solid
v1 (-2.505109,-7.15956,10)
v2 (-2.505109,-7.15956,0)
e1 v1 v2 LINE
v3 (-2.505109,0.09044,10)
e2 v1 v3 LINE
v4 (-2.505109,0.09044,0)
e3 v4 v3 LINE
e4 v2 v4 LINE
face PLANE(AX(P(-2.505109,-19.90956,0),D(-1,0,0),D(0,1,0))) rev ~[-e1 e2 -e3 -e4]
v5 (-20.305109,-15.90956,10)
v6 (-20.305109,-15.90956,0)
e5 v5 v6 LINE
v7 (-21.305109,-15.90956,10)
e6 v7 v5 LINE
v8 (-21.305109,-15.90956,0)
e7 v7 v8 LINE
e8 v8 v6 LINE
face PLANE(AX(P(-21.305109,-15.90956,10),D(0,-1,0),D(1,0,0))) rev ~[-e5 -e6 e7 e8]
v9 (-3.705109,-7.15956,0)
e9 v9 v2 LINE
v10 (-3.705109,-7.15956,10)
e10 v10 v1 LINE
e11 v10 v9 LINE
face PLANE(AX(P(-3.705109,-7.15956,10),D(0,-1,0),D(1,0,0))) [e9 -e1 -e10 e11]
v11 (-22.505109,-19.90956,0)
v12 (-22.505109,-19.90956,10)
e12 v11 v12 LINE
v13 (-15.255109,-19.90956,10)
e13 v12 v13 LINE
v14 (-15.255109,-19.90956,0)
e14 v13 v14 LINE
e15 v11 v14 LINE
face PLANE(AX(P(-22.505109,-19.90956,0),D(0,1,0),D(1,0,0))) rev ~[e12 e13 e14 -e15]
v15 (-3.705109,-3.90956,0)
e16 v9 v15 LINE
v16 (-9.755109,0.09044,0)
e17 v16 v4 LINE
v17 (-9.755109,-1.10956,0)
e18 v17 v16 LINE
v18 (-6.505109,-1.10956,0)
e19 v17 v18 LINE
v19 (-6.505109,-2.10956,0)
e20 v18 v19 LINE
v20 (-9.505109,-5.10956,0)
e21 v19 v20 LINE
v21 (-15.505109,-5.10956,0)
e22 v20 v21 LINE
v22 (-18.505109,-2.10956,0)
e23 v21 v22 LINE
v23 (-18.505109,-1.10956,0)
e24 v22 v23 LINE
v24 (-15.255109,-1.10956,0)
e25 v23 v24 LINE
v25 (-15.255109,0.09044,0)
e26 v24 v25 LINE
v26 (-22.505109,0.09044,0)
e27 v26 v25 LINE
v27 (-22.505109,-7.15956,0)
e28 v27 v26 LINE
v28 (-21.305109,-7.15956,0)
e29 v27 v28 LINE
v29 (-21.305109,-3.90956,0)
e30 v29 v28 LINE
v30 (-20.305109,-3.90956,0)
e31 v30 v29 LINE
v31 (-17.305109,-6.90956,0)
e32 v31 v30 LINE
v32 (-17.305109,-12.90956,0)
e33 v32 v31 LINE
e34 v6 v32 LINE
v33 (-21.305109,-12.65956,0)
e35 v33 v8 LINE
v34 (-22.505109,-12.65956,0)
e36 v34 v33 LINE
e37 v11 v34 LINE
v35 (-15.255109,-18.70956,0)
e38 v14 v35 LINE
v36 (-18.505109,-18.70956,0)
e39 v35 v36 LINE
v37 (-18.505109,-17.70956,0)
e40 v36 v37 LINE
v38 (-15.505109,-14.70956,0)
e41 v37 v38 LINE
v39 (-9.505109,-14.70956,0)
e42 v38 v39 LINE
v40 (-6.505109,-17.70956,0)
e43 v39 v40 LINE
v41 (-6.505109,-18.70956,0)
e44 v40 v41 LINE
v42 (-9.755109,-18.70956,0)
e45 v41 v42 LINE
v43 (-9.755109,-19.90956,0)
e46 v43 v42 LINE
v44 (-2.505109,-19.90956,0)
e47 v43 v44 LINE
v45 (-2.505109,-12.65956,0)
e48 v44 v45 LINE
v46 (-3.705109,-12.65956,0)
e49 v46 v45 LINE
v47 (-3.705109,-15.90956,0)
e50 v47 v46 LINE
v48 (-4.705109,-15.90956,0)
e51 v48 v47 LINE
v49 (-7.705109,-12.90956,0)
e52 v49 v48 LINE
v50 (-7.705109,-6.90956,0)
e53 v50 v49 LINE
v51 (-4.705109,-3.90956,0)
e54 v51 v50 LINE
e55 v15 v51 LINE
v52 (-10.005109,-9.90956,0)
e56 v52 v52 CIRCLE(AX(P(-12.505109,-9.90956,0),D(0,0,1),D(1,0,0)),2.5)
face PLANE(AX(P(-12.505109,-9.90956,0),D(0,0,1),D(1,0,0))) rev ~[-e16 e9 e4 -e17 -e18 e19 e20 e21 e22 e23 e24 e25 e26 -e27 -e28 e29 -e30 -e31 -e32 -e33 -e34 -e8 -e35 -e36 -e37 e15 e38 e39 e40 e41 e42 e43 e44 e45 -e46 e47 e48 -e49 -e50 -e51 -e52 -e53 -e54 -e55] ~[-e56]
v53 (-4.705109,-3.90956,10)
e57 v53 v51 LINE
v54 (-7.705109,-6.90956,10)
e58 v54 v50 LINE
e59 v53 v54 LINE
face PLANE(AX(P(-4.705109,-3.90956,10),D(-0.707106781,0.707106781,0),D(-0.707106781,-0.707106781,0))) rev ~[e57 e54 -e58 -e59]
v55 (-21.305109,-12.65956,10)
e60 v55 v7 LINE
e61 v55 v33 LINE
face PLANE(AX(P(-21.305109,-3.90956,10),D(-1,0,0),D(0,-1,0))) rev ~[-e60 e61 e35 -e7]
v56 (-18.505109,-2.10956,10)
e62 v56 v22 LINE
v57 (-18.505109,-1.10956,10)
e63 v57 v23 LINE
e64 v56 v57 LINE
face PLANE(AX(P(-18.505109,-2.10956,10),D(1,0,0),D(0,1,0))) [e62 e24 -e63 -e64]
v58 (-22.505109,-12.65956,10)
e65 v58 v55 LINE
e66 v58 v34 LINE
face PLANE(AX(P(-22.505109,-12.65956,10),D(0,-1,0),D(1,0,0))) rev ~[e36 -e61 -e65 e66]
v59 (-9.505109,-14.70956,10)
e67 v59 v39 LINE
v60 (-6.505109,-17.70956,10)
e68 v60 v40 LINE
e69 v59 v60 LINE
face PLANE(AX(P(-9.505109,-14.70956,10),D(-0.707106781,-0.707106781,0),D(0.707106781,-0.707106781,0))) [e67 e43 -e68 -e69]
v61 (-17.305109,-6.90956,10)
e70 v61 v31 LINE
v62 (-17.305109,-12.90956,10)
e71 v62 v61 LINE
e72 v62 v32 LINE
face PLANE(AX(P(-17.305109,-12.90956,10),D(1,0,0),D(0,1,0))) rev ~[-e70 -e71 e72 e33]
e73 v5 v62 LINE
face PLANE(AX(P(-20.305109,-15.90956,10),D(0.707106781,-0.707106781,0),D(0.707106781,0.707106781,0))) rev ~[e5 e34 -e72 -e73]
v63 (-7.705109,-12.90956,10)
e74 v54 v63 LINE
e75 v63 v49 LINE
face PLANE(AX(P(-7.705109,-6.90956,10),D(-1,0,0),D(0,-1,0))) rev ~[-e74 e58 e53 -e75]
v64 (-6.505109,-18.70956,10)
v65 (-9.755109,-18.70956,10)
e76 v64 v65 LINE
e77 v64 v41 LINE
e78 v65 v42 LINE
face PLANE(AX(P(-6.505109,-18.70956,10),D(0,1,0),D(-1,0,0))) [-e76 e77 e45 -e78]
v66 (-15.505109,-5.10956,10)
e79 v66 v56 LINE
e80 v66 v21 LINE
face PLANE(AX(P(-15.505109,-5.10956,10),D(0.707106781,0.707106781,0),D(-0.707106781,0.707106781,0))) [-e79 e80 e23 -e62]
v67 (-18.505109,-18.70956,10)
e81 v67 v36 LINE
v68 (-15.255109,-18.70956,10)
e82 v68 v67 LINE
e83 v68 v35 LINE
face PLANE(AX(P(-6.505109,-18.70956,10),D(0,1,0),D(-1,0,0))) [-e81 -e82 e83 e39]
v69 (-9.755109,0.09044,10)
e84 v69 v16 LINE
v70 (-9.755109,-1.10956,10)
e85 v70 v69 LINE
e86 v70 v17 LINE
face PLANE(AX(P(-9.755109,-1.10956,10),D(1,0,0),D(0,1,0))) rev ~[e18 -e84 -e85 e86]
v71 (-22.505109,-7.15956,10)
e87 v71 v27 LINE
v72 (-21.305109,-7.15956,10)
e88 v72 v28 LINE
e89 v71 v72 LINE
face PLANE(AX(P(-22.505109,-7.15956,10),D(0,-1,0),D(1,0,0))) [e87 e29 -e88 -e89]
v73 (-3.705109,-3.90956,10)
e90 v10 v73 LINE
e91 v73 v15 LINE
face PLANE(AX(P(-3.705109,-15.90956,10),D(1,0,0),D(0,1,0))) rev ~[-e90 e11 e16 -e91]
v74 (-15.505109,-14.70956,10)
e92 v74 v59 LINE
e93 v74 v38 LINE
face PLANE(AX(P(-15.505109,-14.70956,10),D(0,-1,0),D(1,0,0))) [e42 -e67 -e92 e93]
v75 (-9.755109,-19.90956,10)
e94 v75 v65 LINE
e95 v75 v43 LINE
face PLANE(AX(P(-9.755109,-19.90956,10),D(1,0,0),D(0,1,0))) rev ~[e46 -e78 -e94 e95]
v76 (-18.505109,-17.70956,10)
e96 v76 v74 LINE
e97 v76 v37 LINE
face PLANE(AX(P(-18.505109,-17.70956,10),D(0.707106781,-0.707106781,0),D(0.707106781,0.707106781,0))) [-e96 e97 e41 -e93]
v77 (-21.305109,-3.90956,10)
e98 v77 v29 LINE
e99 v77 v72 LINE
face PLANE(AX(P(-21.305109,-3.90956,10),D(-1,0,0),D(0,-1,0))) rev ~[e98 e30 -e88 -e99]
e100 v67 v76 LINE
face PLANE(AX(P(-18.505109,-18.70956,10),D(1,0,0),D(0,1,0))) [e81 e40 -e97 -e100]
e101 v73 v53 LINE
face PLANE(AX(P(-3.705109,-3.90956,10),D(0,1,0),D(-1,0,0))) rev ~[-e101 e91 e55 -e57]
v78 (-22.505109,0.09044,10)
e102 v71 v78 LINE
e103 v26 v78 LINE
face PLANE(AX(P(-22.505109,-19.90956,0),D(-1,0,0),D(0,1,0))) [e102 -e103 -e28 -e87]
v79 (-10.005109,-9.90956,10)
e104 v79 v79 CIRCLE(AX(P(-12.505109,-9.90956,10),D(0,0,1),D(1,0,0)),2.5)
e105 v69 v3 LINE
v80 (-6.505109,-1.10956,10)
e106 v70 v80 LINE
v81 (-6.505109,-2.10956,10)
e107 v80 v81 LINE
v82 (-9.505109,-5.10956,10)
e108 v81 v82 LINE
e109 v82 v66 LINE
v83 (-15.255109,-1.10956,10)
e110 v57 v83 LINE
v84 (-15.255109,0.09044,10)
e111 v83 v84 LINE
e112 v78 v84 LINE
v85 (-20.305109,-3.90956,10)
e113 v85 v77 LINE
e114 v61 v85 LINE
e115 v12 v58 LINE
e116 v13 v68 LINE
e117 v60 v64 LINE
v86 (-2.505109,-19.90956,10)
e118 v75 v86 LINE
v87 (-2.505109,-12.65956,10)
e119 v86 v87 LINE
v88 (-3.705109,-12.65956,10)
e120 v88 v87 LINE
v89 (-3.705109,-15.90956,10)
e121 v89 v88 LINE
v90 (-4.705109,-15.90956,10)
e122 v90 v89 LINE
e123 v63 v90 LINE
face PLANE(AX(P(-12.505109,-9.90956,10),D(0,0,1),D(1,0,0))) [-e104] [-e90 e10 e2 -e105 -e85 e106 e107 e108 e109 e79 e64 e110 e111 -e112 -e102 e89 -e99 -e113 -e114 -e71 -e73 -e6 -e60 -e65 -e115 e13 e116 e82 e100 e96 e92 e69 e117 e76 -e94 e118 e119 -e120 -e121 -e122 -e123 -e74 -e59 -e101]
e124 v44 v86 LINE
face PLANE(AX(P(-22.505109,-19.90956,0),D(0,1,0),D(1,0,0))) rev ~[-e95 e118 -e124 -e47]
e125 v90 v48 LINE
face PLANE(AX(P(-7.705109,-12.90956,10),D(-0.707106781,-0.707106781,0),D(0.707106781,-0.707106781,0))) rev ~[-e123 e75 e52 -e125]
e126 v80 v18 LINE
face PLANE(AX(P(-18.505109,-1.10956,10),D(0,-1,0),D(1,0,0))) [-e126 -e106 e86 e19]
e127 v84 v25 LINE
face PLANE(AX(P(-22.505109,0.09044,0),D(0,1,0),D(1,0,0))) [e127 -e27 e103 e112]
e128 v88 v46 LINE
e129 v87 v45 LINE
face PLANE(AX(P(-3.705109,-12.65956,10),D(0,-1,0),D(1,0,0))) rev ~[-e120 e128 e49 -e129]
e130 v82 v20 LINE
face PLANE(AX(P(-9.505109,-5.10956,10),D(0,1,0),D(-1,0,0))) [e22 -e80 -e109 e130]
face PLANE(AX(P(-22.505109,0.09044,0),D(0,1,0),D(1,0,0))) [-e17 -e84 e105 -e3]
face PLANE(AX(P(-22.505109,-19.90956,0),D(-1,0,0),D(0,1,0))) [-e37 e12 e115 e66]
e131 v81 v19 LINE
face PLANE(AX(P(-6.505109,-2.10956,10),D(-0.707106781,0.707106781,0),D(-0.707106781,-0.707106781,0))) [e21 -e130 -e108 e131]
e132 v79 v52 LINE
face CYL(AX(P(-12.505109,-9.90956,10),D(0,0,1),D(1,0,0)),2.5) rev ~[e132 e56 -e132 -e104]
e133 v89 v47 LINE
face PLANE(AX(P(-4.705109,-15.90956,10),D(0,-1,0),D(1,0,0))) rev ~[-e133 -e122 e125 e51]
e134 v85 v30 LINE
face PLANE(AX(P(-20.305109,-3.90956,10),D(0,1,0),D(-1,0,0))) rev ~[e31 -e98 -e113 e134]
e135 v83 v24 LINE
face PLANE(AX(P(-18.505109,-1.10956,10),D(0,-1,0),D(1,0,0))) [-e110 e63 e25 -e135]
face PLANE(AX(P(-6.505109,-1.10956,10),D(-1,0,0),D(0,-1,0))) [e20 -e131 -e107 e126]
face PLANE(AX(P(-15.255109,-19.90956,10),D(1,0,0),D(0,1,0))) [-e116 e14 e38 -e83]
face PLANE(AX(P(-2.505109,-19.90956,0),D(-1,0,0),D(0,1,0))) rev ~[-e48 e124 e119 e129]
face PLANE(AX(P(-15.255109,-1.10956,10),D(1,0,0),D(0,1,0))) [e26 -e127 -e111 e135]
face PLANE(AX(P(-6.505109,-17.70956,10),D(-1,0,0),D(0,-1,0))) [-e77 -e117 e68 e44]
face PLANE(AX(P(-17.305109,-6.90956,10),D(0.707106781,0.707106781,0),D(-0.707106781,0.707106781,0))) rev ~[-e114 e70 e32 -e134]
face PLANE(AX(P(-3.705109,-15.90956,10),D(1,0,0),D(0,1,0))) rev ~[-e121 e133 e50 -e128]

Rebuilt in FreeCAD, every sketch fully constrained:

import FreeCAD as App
import Part
import Sketcher

V = App.Vector

doc = App.newDocument("Part")
body = doc.addObject("PartDesign::Body", "Body")

# Sketch on XY plane
sketch1 = body.newObject("Sketcher::SketchObject", "Sketch")
sketch1.AttachmentSupport = (doc.getObject("XY_Plane"), [""])
sketch1.MapMode = "FlatFace"
sketch1.addGeometry([
    Part.LineSegment(V(-23, 0, 0), V(-23, -20, 0)),
    Part.LineSegment(V(-23, -20, 0), V(-3, -20, 0)),
    Part.LineSegment(V(-3, -20, 0), V(-3, 0, 0)),
    Part.LineSegment(V(-3, 0, 0), V(-23, 0, 0)),
], False)
sketch1.addConstraint([
    Sketcher.Constraint("Coincident", 0, 2, 1, 1),
    Sketcher.Constraint("Coincident", 1, 2, 2, 1),
    Sketcher.Constraint("Coincident", 2, 2, 3, 1),
    Sketcher.Constraint("Coincident", 3, 2, 0, 1),
    Sketcher.Constraint("Vertical", 0),
    Sketcher.Constraint("Horizontal", 1),
    Sketcher.Constraint("Vertical", 2),
    Sketcher.Constraint("Horizontal", 3),
    Sketcher.Constraint("Equal", 3, 0),
    Sketcher.Constraint("DistanceX", 1, 1, 1, 2, 20.0),
    Sketcher.Constraint("DistanceX", 0, 2, -1, 1, 22.505109),
    Sketcher.Constraint("DistanceY", 0, 2, -1, 1, 19.90956),
])
pad1 = body.newObject("PartDesign::Pad", "Pad")
pad1.Profile = sketch1
pad1.Length = 10

# Sketch on XY plane
sketch2 = body.newObject("Sketcher::SketchObject", "Sketch001")
sketch2.AttachmentSupport = (doc.getObject("XY_Plane"), [""])
sketch2.MapMode = "FlatFace"
sketch2.AttachmentOffset = App.Placement(V(0, 0, 10), App.Rotation())
sketch2.addGeometry([
    Part.LineSegment(V(-22.5, -7.2, 0), V(-22.5, -12.7, 0)),  # 0
    Part.LineSegment(V(-22.5, -12.7, 0), V(-21.3, -12.7, 0)),  # 1
    Part.LineSegment(V(-21.3, -12.7, 0), V(-21.3, -7.2, 0)),  # 2
    Part.LineSegment(V(-21.3, -7.2, 0), V(-22.5, -7.2, 0)),  # 3
    Part.LineSegment(V(-15.3, 0.1, 0), V(-15.3, -1.1, 0)),  # 4
    Part.LineSegment(V(-15.3, -1.1, 0), V(-9.8, -1.1, 0)),  # 5
    Part.LineSegment(V(-9.8, -1.1, 0), V(-9.8, 0.1, 0)),  # 6
    Part.LineSegment(V(-9.8, 0.1, 0), V(-15.3, 0.1, 0)),  # 7
    Part.LineSegment(V(-3.7, -7.2, 0), V(-3.7, -12.7, 0)),  # 8
    Part.LineSegment(V(-3.7, -12.7, 0), V(-2.5, -12.7, 0)),  # 9
    Part.LineSegment(V(-2.5, -12.7, 0), V(-2.5, -7.2, 0)),  # 10
    Part.LineSegment(V(-2.5, -7.2, 0), V(-3.7, -7.2, 0)),  # 11
    Part.LineSegment(V(-15.3, -18.7, 0), V(-15.3, -19.9, 0)),  # 12
    Part.LineSegment(V(-15.3, -19.9, 0), V(-9.8, -19.9, 0)),  # 13
    Part.LineSegment(V(-9.8, -19.9, 0), V(-9.8, -18.7, 0)),  # 14
    Part.LineSegment(V(-9.8, -18.7, 0), V(-15.3, -18.7, 0)),  # 15
], False)
sketch2.addConstraint([
    Sketcher.Constraint("Coincident", 0, 2, 1, 1),
    Sketcher.Constraint("Coincident", 1, 2, 2, 1),
    Sketcher.Constraint("Coincident", 2, 2, 3, 1),
    Sketcher.Constraint("Coincident", 3, 2, 0, 1),
    Sketcher.Constraint("Coincident", 4, 2, 5, 1),
    Sketcher.Constraint("Coincident", 5, 2, 6, 1),
    Sketcher.Constraint("Coincident", 6, 2, 7, 1),
    Sketcher.Constraint("Coincident", 7, 2, 4, 1),
    Sketcher.Constraint("Coincident", 8, 2, 9, 1),
    Sketcher.Constraint("Coincident", 9, 2, 10, 1),
    Sketcher.Constraint("Coincident", 10, 2, 11, 1),
    Sketcher.Constraint("Coincident", 11, 2, 8, 1),
    Sketcher.Constraint("Coincident", 12, 2, 13, 1),
    Sketcher.Constraint("Coincident", 13, 2, 14, 1),
    Sketcher.Constraint("Coincident", 14, 2, 15, 1),
    Sketcher.Constraint("Coincident", 15, 2, 12, 1),
    Sketcher.Constraint("Vertical", 0),
    Sketcher.Constraint("Horizontal", 1),
    Sketcher.Constraint("Vertical", 2),
    Sketcher.Constraint("Horizontal", 3),
    Sketcher.Constraint("Vertical", 4),
    Sketcher.Constraint("Horizontal", 5),
    Sketcher.Constraint("Vertical", 6),
    Sketcher.Constraint("Horizontal", 7),
    Sketcher.Constraint("Vertical", 8),
    Sketcher.Constraint("Horizontal", 9),
    Sketcher.Constraint("Vertical", 10),
    Sketcher.Constraint("Horizontal", 11),
    Sketcher.Constraint("Vertical", 12),
    Sketcher.Constraint("Horizontal", 13),
    Sketcher.Constraint("Vertical", 14),
    Sketcher.Constraint("Horizontal", 15),
    Sketcher.Constraint("Horizontal", 1, 2, 8, 2),
    Sketcher.Constraint("Horizontal", 3, 2, 10, 2),
    Sketcher.Constraint("Vertical", 7, 2, 12, 2),
    Sketcher.Constraint("Vertical", 6, 2, 13, 2),
    Sketcher.Constraint("Equal", 3, 9),
    Sketcher.Constraint("Equal", 15, 0),
    Sketcher.Constraint("Equal", 11, 4),
    Sketcher.Constraint("Equal", 6, 12),
    Sketcher.Constraint("DistanceX", 1, 1, 1, 2, 1.2),
    Sketcher.Constraint("DistanceX", 5, 1, 5, 2, 5.5),
    Sketcher.Constraint("DistanceX", 1, 2, 8, 2, 17.6),
    Sketcher.Constraint("DistanceX", 2, 2, 4, 2, 6.05),
    Sketcher.Constraint("DistanceY", 2, 2, 4, 2, 6.05),
    Sketcher.Constraint("DistanceY", 12, 2, 1, 2, 7.25),
    Sketcher.Constraint("DistanceX", 0, 2, -1, 1, 22.505109),
    Sketcher.Constraint("DistanceY", 0, 2, -1, 1, 12.65956),
])
pocket1 = body.newObject("PartDesign::Pocket", "Pocket")
pocket1.Profile = sketch2
pocket1.Type = "ThroughAll"

# Sketch on XY plane
sketch3 = body.newObject("Sketcher::SketchObject", "Sketch002")
sketch3.AttachmentSupport = (doc.getObject("XY_Plane"), [""])
sketch3.MapMode = "FlatFace"
sketch3.AttachmentOffset = App.Placement(V(0, 0, 10), App.Rotation())
sketch3.addGeometry([
    Part.LineSegment(V(-21.3, -15.9, 0), V(-20.3, -15.9, 0)),  # 0
    Part.LineSegment(V(-20.3, -15.9, 0), V(-17.3, -12.9, 0)),  # 1
    Part.LineSegment(V(-17.3, -12.9, 0), V(-17.3, -6.9, 0)),  # 2
    Part.LineSegment(V(-17.3, -6.9, 0), V(-20.3, -3.9, 0)),  # 3
    Part.LineSegment(V(-20.3, -3.9, 0), V(-21.3, -3.9, 0)),  # 4
    Part.LineSegment(V(-21.3, -3.9, 0), V(-21.3, -15.9, 0)),  # 5
    Part.LineSegment(V(-6.5, -1.1, 0), V(-18.5, -1.1, 0)),  # 6
    Part.LineSegment(V(-18.5, -1.1, 0), V(-18.5, -2.1, 0)),  # 7
    Part.LineSegment(V(-18.5, -2.1, 0), V(-15.5, -5.1, 0)),  # 8
    Part.LineSegment(V(-15.5, -5.1, 0), V(-9.5, -5.1, 0)),  # 9
    Part.LineSegment(V(-9.5, -5.1, 0), V(-6.5, -2.1, 0)),  # 10
    Part.LineSegment(V(-6.5, -2.1, 0), V(-6.5, -1.1, 0)),  # 11
    Part.LineSegment(V(-3.7, -3.9, 0), V(-4.7, -3.9, 0)),  # 12
    Part.LineSegment(V(-4.7, -3.9, 0), V(-7.7, -6.9, 0)),  # 13
    Part.LineSegment(V(-7.7, -6.9, 0), V(-7.7, -12.9, 0)),  # 14
    Part.LineSegment(V(-7.7, -12.9, 0), V(-4.7, -15.9, 0)),  # 15
    Part.LineSegment(V(-4.7, -15.9, 0), V(-3.7, -15.9, 0)),  # 16
    Part.LineSegment(V(-3.7, -15.9, 0), V(-3.7, -3.9, 0)),  # 17
    Part.LineSegment(V(-18.5, -18.7, 0), V(-6.5, -18.7, 0)),  # 18
    Part.LineSegment(V(-6.5, -18.7, 0), V(-6.5, -17.7, 0)),  # 19
    Part.LineSegment(V(-6.5, -17.7, 0), V(-9.5, -14.7, 0)),  # 20
    Part.LineSegment(V(-9.5, -14.7, 0), V(-15.5, -14.7, 0)),  # 21
    Part.LineSegment(V(-15.5, -14.7, 0), V(-18.5, -17.7, 0)),  # 22
    Part.LineSegment(V(-18.5, -17.7, 0), V(-18.5, -18.7, 0)),  # 23
], False)
sketch3.addConstraint([
    Sketcher.Constraint("Coincident", 0, 2, 1, 1),
    Sketcher.Constraint("Coincident", 1, 2, 2, 1),
    Sketcher.Constraint("Coincident", 2, 2, 3, 1),
    Sketcher.Constraint("Coincident", 3, 2, 4, 1),
    Sketcher.Constraint("Coincident", 4, 2, 5, 1),
    Sketcher.Constraint("Coincident", 5, 2, 0, 1),
    Sketcher.Constraint("Coincident", 6, 2, 7, 1),
    Sketcher.Constraint("Coincident", 7, 2, 8, 1),
    Sketcher.Constraint("Coincident", 8, 2, 9, 1),
    Sketcher.Constraint("Coincident", 9, 2, 10, 1),
    Sketcher.Constraint("Coincident", 10, 2, 11, 1),
    Sketcher.Constraint("Coincident", 11, 2, 6, 1),
    Sketcher.Constraint("Coincident", 12, 2, 13, 1),
    Sketcher.Constraint("Coincident", 13, 2, 14, 1),
    Sketcher.Constraint("Coincident", 14, 2, 15, 1),
    Sketcher.Constraint("Coincident", 15, 2, 16, 1),
    Sketcher.Constraint("Coincident", 16, 2, 17, 1),
    Sketcher.Constraint("Coincident", 17, 2, 12, 1),
    Sketcher.Constraint("Coincident", 18, 2, 19, 1),
    Sketcher.Constraint("Coincident", 19, 2, 20, 1),
    Sketcher.Constraint("Coincident", 20, 2, 21, 1),
    Sketcher.Constraint("Coincident", 21, 2, 22, 1),
    Sketcher.Constraint("Coincident", 22, 2, 23, 1),
    Sketcher.Constraint("Coincident", 23, 2, 18, 1),
    Sketcher.Constraint("Horizontal", 0),
    Sketcher.Constraint("Vertical", 2),
    Sketcher.Constraint("Horizontal", 4),
    Sketcher.Constraint("Vertical", 5),
    Sketcher.Constraint("Horizontal", 6),
    Sketcher.Constraint("Vertical", 7),
    Sketcher.Constraint("Horizontal", 9),
    Sketcher.Constraint("Vertical", 11),
    Sketcher.Constraint("Horizontal", 12),
    Sketcher.Constraint("Vertical", 14),
    Sketcher.Constraint("Horizontal", 16),
    Sketcher.Constraint("Vertical", 17),
    Sketcher.Constraint("Horizontal", 18),
    Sketcher.Constraint("Vertical", 19),
    Sketcher.Constraint("Horizontal", 21),
    Sketcher.Constraint("Vertical", 23),
    Sketcher.Constraint("Perpendicular", 1, 3),
    Sketcher.Constraint("Parallel", 3, 8),
    Sketcher.Constraint("Perpendicular", 8, 10),
    Sketcher.Constraint("Parallel", 10, 13),
    Sketcher.Constraint("Perpendicular", 13, 15),
    Sketcher.Constraint("Parallel", 15, 20),
    Sketcher.Constraint("Perpendicular", 20, 22),
    Sketcher.Constraint("Horizontal", 7, 2, 10, 2),
    Sketcher.Constraint("Horizontal", 4, 2, 12, 2),
    Sketcher.Constraint("Horizontal", 2, 2, 13, 2),
    Sketcher.Constraint("Horizontal", 1, 2, 14, 2),
    Sketcher.Constraint("Horizontal", 5, 2, 15, 2),
    Sketcher.Constraint("Horizontal", 19, 2, 22, 2),
    Sketcher.Constraint("Vertical", 0, 2, 3, 2),
    Sketcher.Constraint("Vertical", 12, 2, 15, 2),
    Sketcher.Constraint("Vertical", 11, 2, 18, 2),
    Sketcher.Constraint("Vertical", 9, 2, 20, 2),
    Sketcher.Constraint("Vertical", 8, 2, 21, 2),
    Sketcher.Constraint("Equal", 4, 12),
    Sketcher.Constraint("Equal", 21, 2),
    Sketcher.Constraint("Equal", 18, 5),
    Sketcher.Constraint("Equal", 16, 7),
    Sketcher.Constraint("Equal", 11, 19),
    Sketcher.Constraint("DistanceX", 0, 1, 0, 2, 1.0),
    Sketcher.Constraint("DistanceX", 6, 2, 6, 1, 12.0),
    Sketcher.Constraint("DistanceX", 9, 1, 9, 2, 6.0),
    Sketcher.Constraint("DistanceX", 3, 2, 6, 2, 1.8),
    Sketcher.Constraint("DistanceY", 3, 2, 6, 2, 2.8),
    Sketcher.Constraint("DistanceX", 10, 2, 12, 2, 1.8),
    Sketcher.Constraint("DistanceY", 18, 2, 15, 2, 2.8),
    Sketcher.Constraint("DistanceX", 0, 2, -1, 1, 20.305109),
    Sketcher.Constraint("DistanceY", 0, 2, -1, 1, 15.90956),
])
pocket2 = body.newObject("PartDesign::Pocket", "Pocket001")
pocket2.Profile = sketch3
pocket2.Type = "ThroughAll"

# Sketch on XY plane
sketch4 = body.newObject("Sketcher::SketchObject", "Sketch003")
sketch4.AttachmentSupport = (doc.getObject("XY_Plane"), [""])
sketch4.MapMode = "FlatFace"
sketch4.AttachmentOffset = App.Placement(V(0, 0, 10), App.Rotation())
sketch4.addGeometry(Part.Circle(V(-12.5, -9.9, 0), V(0, 0, 1), 2.5), False)
sketch4.addConstraint([
    Sketcher.Constraint("Diameter", 0, 5.0),
    Sketcher.Constraint("DistanceX", 0, 3, -1, 1, 12.505109),
    Sketcher.Constraint("DistanceY", 0, 3, -1, 1, 9.90956),
])
pocket3 = body.newObject("PartDesign::Pocket", "Pocket002")
pocket3.Profile = sketch4
pocket3.Type = "ThroughAll"

doc.recompute()
